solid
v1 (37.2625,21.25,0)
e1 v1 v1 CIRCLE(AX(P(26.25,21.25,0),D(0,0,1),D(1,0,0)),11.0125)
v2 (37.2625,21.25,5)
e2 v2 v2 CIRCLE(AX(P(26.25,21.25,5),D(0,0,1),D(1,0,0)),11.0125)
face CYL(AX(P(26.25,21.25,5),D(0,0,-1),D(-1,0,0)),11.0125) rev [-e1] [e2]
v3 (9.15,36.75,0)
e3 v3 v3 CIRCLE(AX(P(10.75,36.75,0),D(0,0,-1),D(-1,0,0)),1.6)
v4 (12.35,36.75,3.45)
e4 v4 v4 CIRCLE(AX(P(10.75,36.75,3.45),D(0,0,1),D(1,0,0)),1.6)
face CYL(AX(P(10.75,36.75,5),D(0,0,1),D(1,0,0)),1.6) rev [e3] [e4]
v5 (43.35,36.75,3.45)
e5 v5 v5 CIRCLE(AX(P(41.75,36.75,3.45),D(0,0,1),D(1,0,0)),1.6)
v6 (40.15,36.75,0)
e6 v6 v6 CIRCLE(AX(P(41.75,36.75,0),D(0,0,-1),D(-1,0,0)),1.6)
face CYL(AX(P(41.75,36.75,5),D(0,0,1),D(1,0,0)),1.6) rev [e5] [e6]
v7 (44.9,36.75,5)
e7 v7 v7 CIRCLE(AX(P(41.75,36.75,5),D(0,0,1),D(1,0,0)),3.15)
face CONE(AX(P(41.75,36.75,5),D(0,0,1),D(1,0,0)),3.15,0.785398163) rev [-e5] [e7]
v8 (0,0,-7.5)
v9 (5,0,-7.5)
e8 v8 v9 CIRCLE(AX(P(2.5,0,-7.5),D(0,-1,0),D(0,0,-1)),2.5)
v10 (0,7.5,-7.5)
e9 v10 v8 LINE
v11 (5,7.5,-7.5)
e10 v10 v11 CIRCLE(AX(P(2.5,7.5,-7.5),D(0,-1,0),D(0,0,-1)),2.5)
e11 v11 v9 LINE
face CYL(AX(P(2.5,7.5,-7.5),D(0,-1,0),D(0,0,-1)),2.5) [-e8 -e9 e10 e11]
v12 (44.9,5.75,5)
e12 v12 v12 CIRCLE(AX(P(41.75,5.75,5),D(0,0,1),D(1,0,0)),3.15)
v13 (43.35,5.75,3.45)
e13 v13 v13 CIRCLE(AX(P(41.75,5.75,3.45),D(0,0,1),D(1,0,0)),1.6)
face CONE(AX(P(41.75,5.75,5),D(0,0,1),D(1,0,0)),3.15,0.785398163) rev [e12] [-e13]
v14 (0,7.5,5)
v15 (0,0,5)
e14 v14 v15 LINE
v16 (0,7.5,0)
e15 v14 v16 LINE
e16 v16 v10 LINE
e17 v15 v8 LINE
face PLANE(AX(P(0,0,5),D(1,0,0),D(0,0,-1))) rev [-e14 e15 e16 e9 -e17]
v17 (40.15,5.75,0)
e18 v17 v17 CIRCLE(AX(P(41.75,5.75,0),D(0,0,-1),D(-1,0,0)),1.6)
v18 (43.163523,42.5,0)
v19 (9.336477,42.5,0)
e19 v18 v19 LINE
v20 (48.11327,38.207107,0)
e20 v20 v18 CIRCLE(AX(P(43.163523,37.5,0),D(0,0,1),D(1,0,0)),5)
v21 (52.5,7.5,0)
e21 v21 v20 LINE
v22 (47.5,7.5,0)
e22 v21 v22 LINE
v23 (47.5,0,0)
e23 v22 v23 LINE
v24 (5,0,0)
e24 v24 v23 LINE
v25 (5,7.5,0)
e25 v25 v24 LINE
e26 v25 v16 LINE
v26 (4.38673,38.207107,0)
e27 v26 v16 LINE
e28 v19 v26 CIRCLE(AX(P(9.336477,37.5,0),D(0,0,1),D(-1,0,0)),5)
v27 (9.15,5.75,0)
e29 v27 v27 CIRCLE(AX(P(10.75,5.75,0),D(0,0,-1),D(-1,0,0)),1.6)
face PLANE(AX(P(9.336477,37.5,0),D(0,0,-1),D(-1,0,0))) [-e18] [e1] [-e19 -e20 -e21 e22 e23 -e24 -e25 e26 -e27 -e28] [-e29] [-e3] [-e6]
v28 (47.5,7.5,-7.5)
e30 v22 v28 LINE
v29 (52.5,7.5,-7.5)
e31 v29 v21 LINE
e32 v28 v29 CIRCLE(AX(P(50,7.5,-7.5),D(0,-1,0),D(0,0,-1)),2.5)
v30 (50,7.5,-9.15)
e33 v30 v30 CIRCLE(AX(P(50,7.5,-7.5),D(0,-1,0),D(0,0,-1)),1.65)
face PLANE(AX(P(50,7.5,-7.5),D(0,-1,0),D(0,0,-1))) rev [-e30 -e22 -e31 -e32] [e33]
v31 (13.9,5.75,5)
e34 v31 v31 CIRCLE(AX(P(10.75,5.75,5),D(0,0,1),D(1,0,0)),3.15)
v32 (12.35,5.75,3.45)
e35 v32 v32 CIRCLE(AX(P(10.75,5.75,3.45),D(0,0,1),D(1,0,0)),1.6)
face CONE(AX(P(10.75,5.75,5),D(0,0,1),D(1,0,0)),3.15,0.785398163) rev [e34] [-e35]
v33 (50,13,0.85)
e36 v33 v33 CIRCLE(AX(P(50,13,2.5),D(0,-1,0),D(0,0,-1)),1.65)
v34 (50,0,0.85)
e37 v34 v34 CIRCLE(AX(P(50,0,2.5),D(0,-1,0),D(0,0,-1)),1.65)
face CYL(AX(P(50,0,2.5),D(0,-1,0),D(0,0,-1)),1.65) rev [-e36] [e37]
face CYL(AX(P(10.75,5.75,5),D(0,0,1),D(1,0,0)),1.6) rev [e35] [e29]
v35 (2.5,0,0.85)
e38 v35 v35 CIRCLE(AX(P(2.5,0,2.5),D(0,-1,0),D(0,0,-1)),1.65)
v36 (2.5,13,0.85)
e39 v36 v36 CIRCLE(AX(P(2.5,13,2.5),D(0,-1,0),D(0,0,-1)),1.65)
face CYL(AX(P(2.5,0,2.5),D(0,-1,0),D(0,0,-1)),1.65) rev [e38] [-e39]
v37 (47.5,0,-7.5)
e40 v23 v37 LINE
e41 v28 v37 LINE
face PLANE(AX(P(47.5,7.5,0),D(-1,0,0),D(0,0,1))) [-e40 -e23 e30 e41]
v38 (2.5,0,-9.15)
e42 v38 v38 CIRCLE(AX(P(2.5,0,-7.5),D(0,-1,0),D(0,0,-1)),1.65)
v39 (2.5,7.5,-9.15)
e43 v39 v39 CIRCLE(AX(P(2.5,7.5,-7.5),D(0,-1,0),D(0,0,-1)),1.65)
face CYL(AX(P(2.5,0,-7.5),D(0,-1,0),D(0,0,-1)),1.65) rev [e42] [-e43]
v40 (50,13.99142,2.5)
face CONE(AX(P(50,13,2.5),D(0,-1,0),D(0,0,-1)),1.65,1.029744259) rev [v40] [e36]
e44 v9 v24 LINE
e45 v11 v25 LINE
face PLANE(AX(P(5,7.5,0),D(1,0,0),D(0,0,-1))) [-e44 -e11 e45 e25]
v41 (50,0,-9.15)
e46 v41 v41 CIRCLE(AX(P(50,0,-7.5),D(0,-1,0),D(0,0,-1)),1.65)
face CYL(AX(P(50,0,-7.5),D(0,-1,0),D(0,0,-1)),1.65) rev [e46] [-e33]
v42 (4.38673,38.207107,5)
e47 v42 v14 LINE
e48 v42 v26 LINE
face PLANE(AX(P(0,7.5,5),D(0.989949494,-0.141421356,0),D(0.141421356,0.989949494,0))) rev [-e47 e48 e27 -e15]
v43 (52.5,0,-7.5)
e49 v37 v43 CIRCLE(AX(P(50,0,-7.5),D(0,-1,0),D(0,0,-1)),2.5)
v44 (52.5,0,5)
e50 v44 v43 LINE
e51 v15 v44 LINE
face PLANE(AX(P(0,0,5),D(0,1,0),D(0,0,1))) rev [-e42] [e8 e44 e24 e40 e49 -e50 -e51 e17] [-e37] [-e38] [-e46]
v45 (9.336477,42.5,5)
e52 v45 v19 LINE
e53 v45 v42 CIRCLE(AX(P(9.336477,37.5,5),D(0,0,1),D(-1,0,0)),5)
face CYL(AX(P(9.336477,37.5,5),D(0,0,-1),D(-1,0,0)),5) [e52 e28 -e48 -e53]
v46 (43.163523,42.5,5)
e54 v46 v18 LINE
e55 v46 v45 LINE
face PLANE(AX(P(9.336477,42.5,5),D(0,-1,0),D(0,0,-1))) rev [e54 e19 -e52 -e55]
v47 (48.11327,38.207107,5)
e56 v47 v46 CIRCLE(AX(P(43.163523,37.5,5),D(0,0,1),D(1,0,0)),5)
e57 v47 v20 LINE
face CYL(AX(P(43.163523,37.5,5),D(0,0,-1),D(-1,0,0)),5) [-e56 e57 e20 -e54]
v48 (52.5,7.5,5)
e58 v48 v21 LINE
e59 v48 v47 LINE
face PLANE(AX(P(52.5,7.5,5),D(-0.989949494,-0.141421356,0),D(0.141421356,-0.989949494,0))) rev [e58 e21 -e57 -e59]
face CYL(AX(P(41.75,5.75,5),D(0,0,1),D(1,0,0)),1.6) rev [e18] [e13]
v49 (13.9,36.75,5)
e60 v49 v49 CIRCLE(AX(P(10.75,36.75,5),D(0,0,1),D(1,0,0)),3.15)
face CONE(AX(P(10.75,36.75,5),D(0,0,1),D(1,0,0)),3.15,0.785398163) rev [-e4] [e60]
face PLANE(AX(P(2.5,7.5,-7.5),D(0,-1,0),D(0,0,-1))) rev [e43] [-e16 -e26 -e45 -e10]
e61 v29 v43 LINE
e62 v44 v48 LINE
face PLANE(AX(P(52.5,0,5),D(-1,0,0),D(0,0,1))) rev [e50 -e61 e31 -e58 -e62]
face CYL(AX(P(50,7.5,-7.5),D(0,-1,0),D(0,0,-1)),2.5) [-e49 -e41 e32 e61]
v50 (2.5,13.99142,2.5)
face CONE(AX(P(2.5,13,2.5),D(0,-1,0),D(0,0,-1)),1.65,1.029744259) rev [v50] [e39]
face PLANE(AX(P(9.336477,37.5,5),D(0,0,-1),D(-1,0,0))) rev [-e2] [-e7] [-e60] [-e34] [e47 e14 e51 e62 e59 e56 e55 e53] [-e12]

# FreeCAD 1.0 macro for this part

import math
import FreeCAD as App
import Part
import Sketcher

V = App.Vector
Q = App.Units.Quantity

doc = App.newDocument("Part")
body = doc.addObject("PartDesign::Body", "Body")

# Sketch on XY plane
sketch1 = body.newObject("Sketcher::SketchObject", "Sketch")
sketch1.AttachmentSupport = (doc.getObject("XY_Plane"), [""])
sketch1.MapMode = "FlatFace"
sketch1.addGeometry([
    Part.LineSegment(V(52, 8, 0), V(48, 38, 0)),  # 0
    Part.ArcOfCircle(Part.Circle(V(43, 37, 0), V(0, 0, 1), 5), math.radians(8), math.radians(90)),  # 1
    Part.LineSegment(V(43, 42, 0), V(9, 42, 0)),  # 2
    Part.ArcOfCircle(Part.Circle(V(9, 37, 0), V(0, 0, 1), 5), math.radians(90), math.radians(172)),  # 3
    Part.LineSegment(V(4, 38, 0), V(0, 8, 0)),  # 4
    Part.LineSegment(V(0, 8, 0), V(0, 0, 0)),  # 5
    Part.LineSegment(V(0, 0, 0), V(52, 0, 0)),  # 6
    Part.LineSegment(V(52, 0, 0), V(52, 8, 0)),  # 7
    Part.Circle(V(26, 21, 0), V(0, 0, 1), 11),  # 8
], False)
sketch1.addConstraint([
    Sketcher.Constraint("Tangent", 0, 2, 1, 1),
    Sketcher.Constraint("Tangent", 1, 2, 2, 1),
    Sketcher.Constraint("Tangent", 2, 2, 3, 1),
    Sketcher.Constraint("Tangent", 3, 2, 4, 1),
    Sketcher.Constraint("Coincident", 4, 2, 5, 1),
    Sketcher.Constraint("Coincident", 5, 2, 6, 1),
    Sketcher.Constraint("Coincident", 6, 2, 7, 1),
    Sketcher.Constraint("Coincident", 7, 2, 0, 1),
    Sketcher.Constraint("Horizontal", 2),
    Sketcher.Constraint("Vertical", 5),
    Sketcher.Constraint("Horizontal", 6),
    Sketcher.Constraint("Vertical", 7),
    Sketcher.Constraint("Coincident", 5, 2, -1, 1),
    Sketcher.Constraint("Equal", 1, 3),
    Sketcher.Constraint("Horizontal", 0, 2, 3, 2),
    Sketcher.Constraint("Horizontal", 4, 2, 7, 2),
    Sketcher.Constraint("Radius", 1, Q("5 mm")),
    Sketcher.Constraint("Diameter", 8, Q("22.025 mm")),
    Sketcher.Constraint("DistanceX", 6, 1, 6, 2, Q("52.5 mm")),
    Sketcher.Constraint("DistanceY", 5, 2, 5, 1, Q("7.5 mm")),
    Sketcher.Constraint("DistanceY", 4, 2, 3, 3, Q("30 mm")),
    Sketcher.Constraint("DistanceX", -1, 1, 8, 3, Q("26.25 mm")),
    Sketcher.Constraint("DistanceY", -1, 1, 8, 3, Q("21.25 mm")),
    Sketcher.Constraint("DistanceX", 2, 2, 2, 1, Q("33.827046 mm")),
])
pad1 = body.newObject("PartDesign::Pad", "Pad")
pad1.Profile = sketch1
pad1.Length = 5

# Sketch on XZ plane
sketch2 = body.newObject("Sketcher::SketchObject", "Sketch001")
sketch2.AttachmentSupport = (doc.getObject("XZ_Plane"), [""])
sketch2.MapMode = "FlatFace"
sketch2.addGeometry([
    Part.LineSegment(V(52.5, 0, 0), V(47.5, 0, 0)),  # 0
    Part.LineSegment(V(47.5, 0, 0), V(47.5, -7.5, 0)),  # 1
    Part.ArcOfCircle(Part.Circle(V(50, -7.5, 0), V(0, 0, 1), 2.5), math.radians(180), math.radians(360)),  # 2
    Part.LineSegment(V(52.5, -7.5, 0), V(52.5, 0, 0)),  # 3
    Part.LineSegment(V(5, 0, 0), V(0, 0, 0)),  # 4
    Part.LineSegment(V(0, 0, 0), V(0, -7.5, 0)),  # 5
    Part.ArcOfCircle(Part.Circle(V(2.5, -7.5, 0), V(0, 0, 1), 2.5), math.radians(180), math.radians(360)),  # 6
    Part.LineSegment(V(5, -7.5, 0), V(5, 0, 0)),  # 7
], False)
sketch2.addConstraint([
    Sketcher.Constraint("Coincident", 0, 2, 1, 1),
    Sketcher.Constraint("Tangent", 1, 2, 2, 1),
    Sketcher.Constraint("Tangent", 2, 2, 3, 1),
    Sketcher.Constraint("Coincident", 3, 2, 0, 1),
    Sketcher.Constraint("Coincident", 4, 2, 5, 1),
    Sketcher.Constraint("Tangent", 5, 2, 6, 1),
    Sketcher.Constraint("Tangent", 6, 2, 7, 1),
    Sketcher.Constraint("Coincident", 7, 2, 4, 1),
    Sketcher.Constraint("Horizontal", 0),
    Sketcher.Constraint("Vertical", 1),
    Sketcher.Constraint("Vertical", 3),
    Sketcher.Constraint("Horizontal", 4),
    Sketcher.Constraint("Vertical", 5),
    Sketcher.Constraint("Vertical", 7),
    Sketcher.Constraint("Coincident", 4, 2, -1, 1),
    Sketcher.Constraint("Equal", 2, 6),
    Sketcher.Constraint("PointOnObject", 0, 2, -1),
    Sketcher.Constraint("Horizontal", 2, 3, 6, 3),
    Sketcher.Constraint("Radius", 2, Q("2.5 mm")),
    Sketcher.Constraint("DistanceY", 1, 2, 1, 1, Q("7.5 mm")),
    Sketcher.Constraint("DistanceX", -1, 1, 2, 3, Q("50 mm")),
])
pad2 = body.newObject("PartDesign::Pad", "Pad001")
pad2.Profile = sketch2
pad2.Length = 7.5
pad2.Reversed = True

# Sketch on XY plane
sketch3 = body.newObject("Sketcher::SketchObject", "Sketch002")
sketch3.AttachmentSupport = (doc.getObject("XY_Plane"), [""])
sketch3.MapMode = "FlatFace"
sketch3.AttachmentOffset = App.Placement(V(0, 0, 5), App.Rotation())
sketch3.addGeometry([
    Part.Circle(V(10.8, 36.8, 0), V(0, 0, 1), 1.6),
    Part.Circle(V(41.8, 5.8, 0), V(0, 0, 1), 1.6),
    Part.Circle(V(10.8, 5.8, 0), V(0, 0, 1), 1.6),
    Part.Circle(V(41.8, 36.8, 0), V(0, 0, 1), 1.6),
], False)
sketch3.addConstraint([
    Sketcher.Constraint("Equal", 0, 1),
    Sketcher.Constraint("Equal", 1, 2),
    Sketcher.Constraint("Equal", 2, 3),
    Sketcher.Constraint("Horizontal", 1, 3, 2, 3),
    Sketcher.Constraint("Horizontal", 0, 3, 3, 3),
    Sketcher.Constraint("Vertical", 0, 3, 2, 3),
    Sketcher.Constraint("Vertical", 1, 3, 3, 3),
    Sketcher.Constraint("Diameter", 0, Q("3.2 mm")),
    Sketcher.Constraint("DistanceX", 0, 3, 1, 3, Q("31 mm")),
    Sketcher.Constraint("DistanceY", 1, 3, 0, 3, Q("31 mm")),
    Sketcher.Constraint("DistanceX", -1, 1, 0, 3, Q("10.75 mm")),
    Sketcher.Constraint("DistanceY", -1, 1, 0, 3, Q("36.75 mm")),
])
doc.recompute()
hole = body.newObject("PartDesign::Hole", "Hole")
hole.Profile = sketch3
hole.ThreadType = "None"
hole.Diameter = 3.2
hole.DepthType = "ThroughAll"
hole.HoleCutType = "Countersink"
hole.HoleCutDiameter = 6.3
hole.HoleCutCountersinkAngle = 90

# Sketch on XZ plane
sketch4 = body.newObject("Sketcher::SketchObject", "Sketch003")
sketch4.AttachmentSupport = (doc.getObject("XZ_Plane"), [""])
sketch4.MapMode = "FlatFace"
sketch4.addGeometry([
    Part.Circle(V(2.5, -7.5, 0), V(0, 0, 1), 1.6),
    Part.Circle(V(50, -7.5, 0), V(0, 0, 1), 1.6),
    Part.Circle(V(50, 2.5, 0), V(0, 0, 1), 1.6),
    Part.Circle(V(2.5, 2.5, 0), V(0, 0, 1), 1.6),
], False)
sketch4.addConstraint([
    Sketcher.Constraint("Equal", 0, 1),
    Sketcher.Constraint("Equal", 1, 2),
    Sketcher.Constraint("Equal", 2, 3),
    Sketcher.Constraint("Horizontal", 0, 3, 1, 3),
    Sketcher.Constraint("Horizontal", 2, 3, 3, 3),
    Sketcher.Constraint("Vertical", 1, 3, 2, 3),
    Sketcher.Constraint("Vertical", 0, 3, 3, 3),
    Sketcher.Constraint("Diameter", 0, Q("3.3 mm")),
    Sketcher.Constraint("DistanceX", -1, 1, 1, 3, Q("50 mm")),
    Sketcher.Constraint("DistanceY", 1, 3, 2, 3, Q("10 mm")),
    Sketcher.Constraint("DistanceX", -1, 1, 0, 3, Q("2.5 mm")),
    Sketcher.Constraint("DistanceY", 0, 3, -1, 1, Q("7.5 mm")),
])
doc.recompute()
hole2 = body.newObject("PartDesign::Hole", "Hole001")
hole2.Profile = sketch4
hole2.ThreadType = "None"
hole2.Diameter = 3.3
hole2.DepthType = "Dimension"
hole2.Depth = 13
hole2.DrillPoint = "Angled"
hole2.DrillPointAngle = 118

doc.recompute()
